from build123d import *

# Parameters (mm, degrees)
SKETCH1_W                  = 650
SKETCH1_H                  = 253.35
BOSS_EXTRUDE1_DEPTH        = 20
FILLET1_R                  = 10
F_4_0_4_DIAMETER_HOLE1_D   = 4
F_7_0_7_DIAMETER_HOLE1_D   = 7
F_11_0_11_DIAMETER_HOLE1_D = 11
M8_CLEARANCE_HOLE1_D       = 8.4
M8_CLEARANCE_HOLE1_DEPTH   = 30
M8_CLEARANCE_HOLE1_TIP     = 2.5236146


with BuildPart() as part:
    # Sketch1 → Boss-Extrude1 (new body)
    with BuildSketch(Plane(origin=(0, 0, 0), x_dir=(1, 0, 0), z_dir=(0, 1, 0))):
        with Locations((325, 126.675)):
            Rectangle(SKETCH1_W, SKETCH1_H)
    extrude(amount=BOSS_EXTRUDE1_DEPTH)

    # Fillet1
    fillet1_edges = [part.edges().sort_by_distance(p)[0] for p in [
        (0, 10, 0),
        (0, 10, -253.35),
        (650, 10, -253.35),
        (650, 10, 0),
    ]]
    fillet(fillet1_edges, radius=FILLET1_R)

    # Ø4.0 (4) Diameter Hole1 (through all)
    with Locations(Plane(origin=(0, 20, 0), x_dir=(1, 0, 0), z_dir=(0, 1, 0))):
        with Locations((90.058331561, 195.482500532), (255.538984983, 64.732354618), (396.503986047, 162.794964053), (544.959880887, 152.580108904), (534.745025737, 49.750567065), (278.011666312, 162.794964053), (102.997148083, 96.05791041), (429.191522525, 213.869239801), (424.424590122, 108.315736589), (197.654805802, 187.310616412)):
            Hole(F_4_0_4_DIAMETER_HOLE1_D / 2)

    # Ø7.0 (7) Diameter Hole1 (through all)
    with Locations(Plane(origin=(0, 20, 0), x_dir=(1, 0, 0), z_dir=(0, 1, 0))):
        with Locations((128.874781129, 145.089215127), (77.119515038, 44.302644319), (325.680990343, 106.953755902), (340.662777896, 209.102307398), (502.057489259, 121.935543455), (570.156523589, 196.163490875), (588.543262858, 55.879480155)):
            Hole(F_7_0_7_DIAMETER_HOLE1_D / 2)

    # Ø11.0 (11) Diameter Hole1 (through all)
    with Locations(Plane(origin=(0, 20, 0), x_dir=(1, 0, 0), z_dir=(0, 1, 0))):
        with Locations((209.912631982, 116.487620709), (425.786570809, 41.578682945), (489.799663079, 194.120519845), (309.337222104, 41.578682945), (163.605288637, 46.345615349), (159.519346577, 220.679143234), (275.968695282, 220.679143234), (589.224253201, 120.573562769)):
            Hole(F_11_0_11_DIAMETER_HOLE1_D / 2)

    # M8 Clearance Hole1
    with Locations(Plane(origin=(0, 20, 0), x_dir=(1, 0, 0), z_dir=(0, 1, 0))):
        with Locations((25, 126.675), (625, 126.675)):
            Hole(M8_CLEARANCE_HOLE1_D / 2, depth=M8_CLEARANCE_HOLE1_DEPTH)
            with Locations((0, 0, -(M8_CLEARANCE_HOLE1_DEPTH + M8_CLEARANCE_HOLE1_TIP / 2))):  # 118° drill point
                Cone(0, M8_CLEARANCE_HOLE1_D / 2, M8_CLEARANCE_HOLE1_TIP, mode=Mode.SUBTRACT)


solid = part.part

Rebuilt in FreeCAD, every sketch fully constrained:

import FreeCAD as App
import Part
import Sketcher

V = App.Vector
Q = App.Units.Quantity


def edges_at(feature, points):
    """Names of the edges that pass closest to the given points."""
    edges = feature.Shape.Edges
    near = lambda p: min(range(len(edges)), key=lambda i: edges[i].distToShape(Part.Vertex(*p))[0])
    return sorted({f"Edge{near(p) + 1}" for p in points})

doc = App.newDocument("Part")
body = doc.addObject("PartDesign::Body", "Body")

# Sketch on XZ plane
sketch1 = body.newObject("Sketcher::SketchObject", "Sketch")
sketch1.AttachmentSupport = (doc.getObject("XZ_Plane"), [""])
sketch1.MapMode = "FlatFace"
sketch1.addGeometry(Part.LineSegment(V(0, -253, 0), V(0, 0, 0)), False)
sketch1.addGeometry(Part.LineSegment(V(0, 0, 0), V(650, 0, 0)), False)
sketch1.addGeometry(Part.LineSegment(V(650, 0, 0), V(650, -253, 0)), False)
sketch1.addGeometry(Part.LineSegment(V(650, -253, 0), V(0, -253, 0)), False)
sketch1.addConstraint(Sketcher.Constraint("Coincident", 0, 2, 1, 1))
sketch1.addConstraint(Sketcher.Constraint("Coincident", 1, 2, 2, 1))
sketch1.addConstraint(Sketcher.Constraint("Coincident", 2, 2, 3, 1))
sketch1.addConstraint(Sketcher.Constraint("Coincident", 3, 2, 0, 1))
sketch1.addConstraint(Sketcher.Constraint("Vertical", 0))
sketch1.addConstraint(Sketcher.Constraint("Horizontal", 1))
sketch1.addConstraint(Sketcher.Constraint("Vertical", 2))
sketch1.addConstraint(Sketcher.Constraint("Horizontal", 3))
sketch1.addConstraint(Sketcher.Constraint("Coincident", 0, 2, -1, 1))
sketch1.addConstraint(Sketcher.Constraint("DistanceX", 1, 1, 1, 2, Q("650 mm")))
sketch1.addConstraint(Sketcher.Constraint("DistanceY", 0, 1, 0, 2, Q("253.35 mm")))
pad1 = body.newObject("PartDesign::Pad", "Pad")
pad1.Profile = sketch1
pad1.Length = 20
pad1.Reversed = True
doc.recompute()

fillet = body.newObject("PartDesign::Fillet", "Fillet")
fillet.Base = (pad1, edges_at(pad1, [
    (0, 10, 0),
    (0, 10, -253.35),
    (650, 10, -253.35),
    (650, 10, 0),
]))
fillet.Radius = 10

# Sketch on XZ plane
sketch2 = body.newObject("Sketcher::SketchObject", "Sketch001")
sketch2.AttachmentSupport = (doc.getObject("XZ_Plane"), [""])
sketch2.MapMode = "FlatFace"
sketch2.AttachmentOffset = App.Placement(V(0, 0, -20), App.Rotation())
sketch2.addGeometry(Part.Circle(V(90.1, -195.5, 0), V(0, 0, 1), 2), False)
sketch2.addGeometry(Part.Circle(V(255.5, -64.7, 0), V(0, 0, 1), 2), False)
sketch2.addGeometry(Part.Circle(V(396.5, -162.8, 0), V(0, 0, 1), 2), False)
sketch2.addGeometry(Part.Circle(V(545, -152.6, 0), V(0, 0, 1), 2), False)
sketch2.addGeometry(Part.Circle(V(534.7, -49.8, 0), V(0, 0, 1), 2), False)
sketch2.addGeometry(Part.Circle(V(278, -162.8, 0), V(0, 0, 1), 2), False)
sketch2.addGeometry(Part.Circle(V(103, -96.1, 0), V(0, 0, 1), 2), False)
sketch2.addGeometry(Part.Circle(V(429.2, -213.9, 0), V(0, 0, 1), 2), False)
sketch2.addGeometry(Part.Circle(V(424.4, -108.3, 0), V(0, 0, 1), 2), False)
sketch2.addGeometry(Part.Circle(V(197.7, -187.3, 0), V(0, 0, 1), 2), False)
sketch2.addConstraint(Sketcher.Constraint("Equal", 0, 1))
sketch2.addConstraint(Sketcher.Constraint("Equal", 1, 2))
sketch2.addConstraint(Sketcher.Constraint("Equal", 2, 3))
sketch2.addConstraint(Sketcher.Constraint("Equal", 3, 4))
sketch2.addConstraint(Sketcher.Constraint("Equal", 4, 5))
sketch2.addConstraint(Sketcher.Constraint("Equal", 5, 6))
sketch2.addConstraint(Sketcher.Constraint("Equal", 6, 7))
sketch2.addConstraint(Sketcher.Constraint("Equal", 7, 8))
sketch2.addConstraint(Sketcher.Constraint("Equal", 8, 9))
sketch2.addConstraint(Sketcher.Constraint("Horizontal", 2, 3, 5, 3))
sketch2.addConstraint(Sketcher.Constraint("Diameter", 0, Q("4 mm")))
sketch2.addConstraint(Sketcher.Constraint("DistanceX", 1, 3, 2, 3, Q("140.965001 mm")))
sketch2.addConstraint(Sketcher.Constraint("DistanceY", 0, 3, -1, 1, Q("195.482501 mm")))
sketch2.addConstraint(Sketcher.Constraint("DistanceX", -1, 1, 0, 3, Q("90.058332 mm")))
sketch2.addConstraint(Sketcher.Constraint("DistanceX", -1, 1, 3, 3, Q("544.959881 mm")))
sketch2.addConstraint(Sketcher.Constraint("DistanceY", 3, 3, -1, 1, Q("152.580109 mm")))
sketch2.addConstraint(Sketcher.Constraint("DistanceX", -1, 1, 6, 3, Q("102.997148 mm")))
sketch2.addConstraint(Sketcher.Constraint("DistanceY", 6, 3, -1, 1, Q("96.05791 mm")))
sketch2.addConstraint(Sketcher.Constraint("DistanceY", 7, 3, -1, 1, Q("213.86924 mm")))
sketch2.addConstraint(Sketcher.Constraint("DistanceX", -1, 1, 8, 3, Q("424.42459 mm")))
sketch2.addConstraint(Sketcher.Constraint("DistanceY", 2, 3, 1, 3, Q("98.062609 mm")))
sketch2.addConstraint(Sketcher.Constraint("DistanceY", 3, 3, 4, 3, Q("102.829542 mm")))
sketch2.addConstraint(Sketcher.Constraint("DistanceX", 2, 3, 4, 3, Q("138.24104 mm")))
sketch2.addConstraint(Sketcher.Constraint("DistanceX", 1, 3, 5, 3, Q("22.472681 mm")))
sketch2.addConstraint(Sketcher.Constraint("DistanceX", 6, 3, 5, 3, Q("175.014518 mm")))
sketch2.addConstraint(Sketcher.Constraint("DistanceX", 7, 3, 3, 3, Q("115.768358 mm")))
sketch2.addConstraint(Sketcher.Constraint("DistanceY", 8, 3, 4, 3, Q("58.56517 mm")))
sketch2.addConstraint(Sketcher.Constraint("DistanceX", 9, 3, 5, 3, Q("80.356861 mm")))
sketch2.addConstraint(Sketcher.Constraint("DistanceY", 9, 3, 1, 3, Q("122.578262 mm")))
sketch2.addConstraint(Sketcher.Constraint("DistanceY", 1, 3, -1, 1, Q("64.732355 mm")))
doc.recompute()
hole = body.newObject("PartDesign::Hole", "Hole")
hole.Profile = sketch2
hole.ThreadType = "None"
hole.Diameter = 4
hole.DepthType = "ThroughAll"
hole.Reversed = True

# Sketch on XZ plane
sketch3 = body.newObject("Sketcher::SketchObject", "Sketch002")
sketch3.AttachmentSupport = (doc.getObject("XZ_Plane"), [""])
sketch3.MapMode = "FlatFace"
sketch3.AttachmentOffset = App.Placement(V(0, 0, -20), App.Rotation())
sketch3.addGeometry(Part.Circle(V(128.9, -145.1, 0), V(0, 0, 1), 3.5), False)
sketch3.addGeometry(Part.Circle(V(77.1, -44.3, 0), V(0, 0, 1), 3.5), False)
sketch3.addGeometry(Part.Circle(V(325.7, -107, 0), V(0, 0, 1), 3.5), False)
sketch3.addGeometry(Part.Circle(V(340.7, -209.1, 0), V(0, 0, 1), 3.5), False)
sketch3.addGeometry(Part.Circle(V(502.1, -121.9, 0), V(0, 0, 1), 3.5), False)
sketch3.addGeometry(Part.Circle(V(570.2, -196.2, 0), V(0, 0, 1), 3.5), False)
sketch3.addGeometry(Part.Circle(V(588.5, -55.9, 0), V(0, 0, 1), 3.5), False)
sketch3.addConstraint(Sketcher.Constraint("Equal", 0, 1))
sketch3.addConstraint(Sketcher.Constraint("Equal", 1, 2))
sketch3.addConstraint(Sketcher.Constraint("Equal", 2, 3))
sketch3.addConstraint(Sketcher.Constraint("Equal", 3, 4))
sketch3.addConstraint(Sketcher.Constraint("Equal", 4, 5))
sketch3.addConstraint(Sketcher.Constraint("Equal", 5, 6))
sketch3.addConstraint(Sketcher.Constraint("Diameter", 0, Q("7 mm")))
sketch3.addConstraint(Sketcher.Constraint("DistanceX", 2, 3, 4, 3, Q("176.376499 mm")))
sketch3.addConstraint(Sketcher.Constraint("DistanceY", 4, 3, 1, 3, Q("77.632899 mm")))
sketch3.addConstraint(Sketcher.Constraint("DistanceX", -1, 1, 0, 3, Q("128.874781 mm")))
sketch3.addConstraint(Sketcher.Constraint("DistanceX", -1, 1, 2, 3, Q("325.68099 mm")))
sketch3.addConstraint(Sketcher.Constraint("DistanceY", 5, 3, -1, 1, Q("196.163491 mm")))
sketch3.addConstraint(Sketcher.Constraint("DistanceY", 6, 3, -1, 1, Q("55.87948 mm")))
sketch3.addConstraint(Sketcher.Constraint("DistanceY", 0, 3, 1, 3, Q("100.786571 mm")))
sketch3.addConstraint(Sketcher.Constraint("DistanceY", 0, 3, 2, 3, Q("38.135459 mm")))
sketch3.addConstraint(Sketcher.Constraint("DistanceY", 3, 3, 2, 3, Q("102.148551 mm")))
sketch3.addConstraint(Sketcher.Constraint("DistanceX", 3, 3, 4, 3, Q("161.394711 mm")))
sketch3.addConstraint(Sketcher.Constraint("DistanceX", 1, 3, 5, 3, Q("493.037009 mm")))
sketch3.addConstraint(Sketcher.Constraint("DistanceX", 5, 3, 6, 3, Q("18.386739 mm")))
sketch3.addConstraint(Sketcher.Constraint("DistanceX", 0, 3, 6, 3, Q("459.668482 mm")))
sketch3.addConstraint(Sketcher.Constraint("DistanceY", 0, 3, -1, 1, Q("145.089215 mm")))
doc.recompute()
hole2 = body.newObject("PartDesign::Hole", "Hole001")
hole2.Profile = sketch3
hole2.ThreadType = "None"
hole2.Diameter = 7
hole2.DepthType = "ThroughAll"
hole2.Reversed = True

# Sketch on XZ plane
sketch4 = body.newObject("Sketcher::SketchObject", "Sketch003")
sketch4.AttachmentSupport = (doc.getObject("XZ_Plane"), [""])
sketch4.MapMode = "FlatFace"
sketch4.AttachmentOffset = App.Placement(V(0, 0, -20), App.Rotation())
sketch4.addGeometry(Part.Circle(V(210, -116, 0), V(0, 0, 1), 6), False)
sketch4.addGeometry(Part.Circle(V(426, -42, 0), V(0, 0, 1), 6), False)
sketch4.addGeometry(Part.Circle(V(490, -194, 0), V(0, 0, 1), 6), False)
sketch4.addGeometry(Part.Circle(V(309, -42, 0), V(0, 0, 1), 6), False)
sketch4.addGeometry(Part.Circle(V(164, -46, 0), V(0, 0, 1), 6), False)
sketch4.addGeometry(Part.Circle(V(160, -221, 0), V(0, 0, 1), 6), False)
sketch4.addGeometry(Part.Circle(V(276, -221, 0), V(0, 0, 1), 6), False)
sketch4.addGeometry(Part.Circle(V(589, -121, 0), V(0, 0, 1), 6), False)
sketch4.addConstraint(Sketcher.Constraint("Equal", 0, 1))
sketch4.addConstraint(Sketcher.Constraint("Equal", 1, 2))
sketch4.addConstraint(Sketcher.Constraint("Equal", 2, 3))
sketch4.addConstraint(Sketcher.Constraint("Equal", 3, 4))
sketch4.addConstraint(Sketcher.Constraint("Equal", 4, 5))
sketch4.addConstraint(Sketcher.Constraint("Equal", 5, 6))
sketch4.addConstraint(Sketcher.Constraint("Equal", 6, 7))
sketch4.addConstraint(Sketcher.Constraint("Horizontal", 1, 3, 3, 3))
sketch4.addConstraint(Sketcher.Constraint("Horizontal", 5, 3, 6, 3))
sketch4.addConstraint(Sketcher.Constraint("Diameter", 0, Q("11 mm")))
sketch4.addConstraint(Sketcher.Constraint("DistanceY", 2, 3, 0, 3, Q("77.632899 mm")))
sketch4.addConstraint(Sketcher.Constraint("DistanceX", -1, 1, 0, 3, Q("209.912632 mm")))
sketch4.addConstraint(Sketcher.Constraint("DistanceY", 0, 3, -1, 1, Q("116.487621 mm")))
sketch4.addConstraint(Sketcher.Constraint("DistanceX", -1, 1, 1, 3, Q("425.786571 mm")))
sketch4.addConstraint(Sketcher.Constraint("DistanceX", -1, 1, 4, 3, Q("163.605289 mm")))
sketch4.addConstraint(Sketcher.Constraint("DistanceX", 0, 3, 2, 3, Q("279.887031 mm")))
sketch4.addConstraint(Sketcher.Constraint("DistanceX", 3, 3, 1, 3, Q("116.449349 mm")))
sketch4.addConstraint(Sketcher.Constraint("DistanceY", 5, 3, 3, 3, Q("179.10046 mm")))
sketch4.addConstraint(Sketcher.Constraint("DistanceX", 5, 3, 6, 3, Q("116.449349 mm")))
sketch4.addConstraint(Sketcher.Constraint("DistanceX", 2, 3, 7, 3, Q("99.42459 mm")))
sketch4.addConstraint(Sketcher.Constraint("DistanceY", 7, 3, 1, 3, Q("78.99488 mm")))
sketch4.addConstraint(Sketcher.Constraint("DistanceY", 1, 3, -1, 1, Q("41.578683 mm")))
sketch4.addConstraint(Sketcher.Constraint("DistanceY", 4, 3, -1, 1, Q("46.345615 mm")))
sketch4.addConstraint(Sketcher.Constraint("DistanceX", -1, 1, 5, 3, Q("159.519347 mm")))
doc.recompute()
hole3 = body.newObject("PartDesign::Hole", "Hole002")
hole3.Profile = sketch4
hole3.ThreadType = "None"
hole3.Diameter = 11
hole3.DepthType = "ThroughAll"
hole3.Reversed = True

# Sketch on XZ plane
sketch5 = body.newObject("Sketcher::SketchObject", "Sketch004")
sketch5.AttachmentSupport = (doc.getObject("XZ_Plane"), [""])
sketch5.MapMode = "FlatFace"
sketch5.AttachmentOffset = App.Placement(V(0, 0, -20), App.Rotation())
sketch5.addGeometry(Part.Circle(V(25, -126.7, 0), V(0, 0, 1), 4.2), False)
sketch5.addGeometry(Part.Circle(V(625, -126.7, 0), V(0, 0, 1), 4.2), False)
sketch5.addConstraint(Sketcher.Constraint("Equal", 0, 1))
sketch5.addConstraint(Sketcher.Constraint("Horizontal", 0, 3, 1, 3))
sketch5.addConstraint(Sketcher.Constraint("Diameter", 0, Q("8.4 mm")))
sketch5.addConstraint(Sketcher.Constraint("DistanceX", -1, 1, 0, 3, Q("25 mm")))
sketch5.addConstraint(Sketcher.Constraint("DistanceX", -1, 1, 1, 3, Q("625 mm")))
sketch5.addConstraint(Sketcher.Constraint("DistanceY", 0, 3, -1, 1, Q("126.675 mm")))
doc.recompute()
hole4 = body.newObject("PartDesign::Hole", "Hole003")
hole4.Profile = sketch5
hole4.ThreadType = "None"
hole4.Diameter = 8.4
hole4.DepthType = "Dimension"
hole4.Depth = 30
hole4.DrillPoint = "Angled"
hole4.DrillPointAngle = 118
hole4.Reversed = True

doc.recompute()
